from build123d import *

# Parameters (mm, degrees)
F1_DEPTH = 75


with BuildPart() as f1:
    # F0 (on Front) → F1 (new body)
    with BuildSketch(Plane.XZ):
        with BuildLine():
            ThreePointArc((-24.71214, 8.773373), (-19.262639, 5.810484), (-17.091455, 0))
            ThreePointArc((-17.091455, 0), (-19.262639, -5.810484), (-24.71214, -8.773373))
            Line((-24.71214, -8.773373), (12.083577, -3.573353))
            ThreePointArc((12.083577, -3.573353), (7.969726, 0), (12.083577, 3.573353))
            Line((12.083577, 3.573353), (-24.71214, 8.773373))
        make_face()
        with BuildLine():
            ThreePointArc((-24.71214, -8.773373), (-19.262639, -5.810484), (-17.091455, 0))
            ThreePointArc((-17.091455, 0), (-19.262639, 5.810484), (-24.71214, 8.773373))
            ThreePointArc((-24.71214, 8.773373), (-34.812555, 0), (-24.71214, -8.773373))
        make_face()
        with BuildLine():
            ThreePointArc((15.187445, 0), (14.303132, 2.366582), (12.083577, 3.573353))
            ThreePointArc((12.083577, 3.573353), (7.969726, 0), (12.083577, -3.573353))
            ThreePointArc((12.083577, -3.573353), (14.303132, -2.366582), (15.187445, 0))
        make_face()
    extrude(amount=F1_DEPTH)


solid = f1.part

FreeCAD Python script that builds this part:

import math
import FreeCAD as App
import Part
import Sketcher

doc = App.newDocument("Part")
params = doc.addObject("Spreadsheet::Sheet", "Params")
for row, (alias, value) in enumerate([
    ("pad1_length", "75 mm"),
], start=1):
    params.set(f"A{row}", alias)
    params.set(f"B{row}", "=" + value)
    params.setAlias(f"B{row}", alias)

body = doc.addObject("PartDesign::Body", "Body")

sketch1 = body.newObject("Sketcher::SketchObject", "Sketch")
sketch1.AttachmentSupport = (doc.getObject("XZ_Plane"), [""])
sketch1.MapMode = "FlatFace"
sketch1.addGeometry([
    Part.LineSegment(App.Vector(-24.7, -8.8, 0), App.Vector(12.1, -3.6, 0)),
    Part.ArcOfCircle(Part.Circle(App.Vector(11.6, 0, 0), App.Vector(0, 0, 1), 3.6), math.radians(-82), math.radians(0)),
    Part.ArcOfCircle(Part.Circle(App.Vector(11.6, 0, 0), App.Vector(0, 0, 1), 3.6), math.radians(0), math.radians(82)),
    Part.LineSegment(App.Vector(12.1, 3.6, 0), App.Vector(-24.7, 8.8, 0)),
    Part.ArcOfCircle(Part.Circle(App.Vector(-26, 0, 0), App.Vector(0, 0, 1), 8.9), math.radians(82), math.radians(278)),
], False)
sketch1.addConstraint([
    Sketcher.Constraint("Tangent", 0, 2, 1, 1),
    Sketcher.Constraint("Tangent", 1, 2, 2, 1),
    Sketcher.Constraint("Tangent", 2, 2, 3, 1),
    Sketcher.Constraint("Tangent", 3, 2, 4, 1),
    Sketcher.Constraint("Tangent", 4, 2, 0, 1),
    Sketcher.Constraint("Equal", 1, 2),
    Sketcher.Constraint("Symmetric", 0, 2, 2, 2, -1),
    Sketcher.Constraint("PointOnObject", 1, 2, -1),
    Sketcher.Constraint("Radius", 1, 3.608861),
    Sketcher.Constraint("Radius", 4, 8.86055),
    Sketcher.Constraint("DistanceX", 3, 2, -1, 1, 24.71214),
    Sketcher.Constraint("DistanceX", 4, 3, 1, 3, 37.530589),
])
pad1 = body.newObject("PartDesign::Pad", "Pad")
pad1.Profile = sketch1
pad1.setExpression("Length", "Params.pad1_length")

doc.recompute()
